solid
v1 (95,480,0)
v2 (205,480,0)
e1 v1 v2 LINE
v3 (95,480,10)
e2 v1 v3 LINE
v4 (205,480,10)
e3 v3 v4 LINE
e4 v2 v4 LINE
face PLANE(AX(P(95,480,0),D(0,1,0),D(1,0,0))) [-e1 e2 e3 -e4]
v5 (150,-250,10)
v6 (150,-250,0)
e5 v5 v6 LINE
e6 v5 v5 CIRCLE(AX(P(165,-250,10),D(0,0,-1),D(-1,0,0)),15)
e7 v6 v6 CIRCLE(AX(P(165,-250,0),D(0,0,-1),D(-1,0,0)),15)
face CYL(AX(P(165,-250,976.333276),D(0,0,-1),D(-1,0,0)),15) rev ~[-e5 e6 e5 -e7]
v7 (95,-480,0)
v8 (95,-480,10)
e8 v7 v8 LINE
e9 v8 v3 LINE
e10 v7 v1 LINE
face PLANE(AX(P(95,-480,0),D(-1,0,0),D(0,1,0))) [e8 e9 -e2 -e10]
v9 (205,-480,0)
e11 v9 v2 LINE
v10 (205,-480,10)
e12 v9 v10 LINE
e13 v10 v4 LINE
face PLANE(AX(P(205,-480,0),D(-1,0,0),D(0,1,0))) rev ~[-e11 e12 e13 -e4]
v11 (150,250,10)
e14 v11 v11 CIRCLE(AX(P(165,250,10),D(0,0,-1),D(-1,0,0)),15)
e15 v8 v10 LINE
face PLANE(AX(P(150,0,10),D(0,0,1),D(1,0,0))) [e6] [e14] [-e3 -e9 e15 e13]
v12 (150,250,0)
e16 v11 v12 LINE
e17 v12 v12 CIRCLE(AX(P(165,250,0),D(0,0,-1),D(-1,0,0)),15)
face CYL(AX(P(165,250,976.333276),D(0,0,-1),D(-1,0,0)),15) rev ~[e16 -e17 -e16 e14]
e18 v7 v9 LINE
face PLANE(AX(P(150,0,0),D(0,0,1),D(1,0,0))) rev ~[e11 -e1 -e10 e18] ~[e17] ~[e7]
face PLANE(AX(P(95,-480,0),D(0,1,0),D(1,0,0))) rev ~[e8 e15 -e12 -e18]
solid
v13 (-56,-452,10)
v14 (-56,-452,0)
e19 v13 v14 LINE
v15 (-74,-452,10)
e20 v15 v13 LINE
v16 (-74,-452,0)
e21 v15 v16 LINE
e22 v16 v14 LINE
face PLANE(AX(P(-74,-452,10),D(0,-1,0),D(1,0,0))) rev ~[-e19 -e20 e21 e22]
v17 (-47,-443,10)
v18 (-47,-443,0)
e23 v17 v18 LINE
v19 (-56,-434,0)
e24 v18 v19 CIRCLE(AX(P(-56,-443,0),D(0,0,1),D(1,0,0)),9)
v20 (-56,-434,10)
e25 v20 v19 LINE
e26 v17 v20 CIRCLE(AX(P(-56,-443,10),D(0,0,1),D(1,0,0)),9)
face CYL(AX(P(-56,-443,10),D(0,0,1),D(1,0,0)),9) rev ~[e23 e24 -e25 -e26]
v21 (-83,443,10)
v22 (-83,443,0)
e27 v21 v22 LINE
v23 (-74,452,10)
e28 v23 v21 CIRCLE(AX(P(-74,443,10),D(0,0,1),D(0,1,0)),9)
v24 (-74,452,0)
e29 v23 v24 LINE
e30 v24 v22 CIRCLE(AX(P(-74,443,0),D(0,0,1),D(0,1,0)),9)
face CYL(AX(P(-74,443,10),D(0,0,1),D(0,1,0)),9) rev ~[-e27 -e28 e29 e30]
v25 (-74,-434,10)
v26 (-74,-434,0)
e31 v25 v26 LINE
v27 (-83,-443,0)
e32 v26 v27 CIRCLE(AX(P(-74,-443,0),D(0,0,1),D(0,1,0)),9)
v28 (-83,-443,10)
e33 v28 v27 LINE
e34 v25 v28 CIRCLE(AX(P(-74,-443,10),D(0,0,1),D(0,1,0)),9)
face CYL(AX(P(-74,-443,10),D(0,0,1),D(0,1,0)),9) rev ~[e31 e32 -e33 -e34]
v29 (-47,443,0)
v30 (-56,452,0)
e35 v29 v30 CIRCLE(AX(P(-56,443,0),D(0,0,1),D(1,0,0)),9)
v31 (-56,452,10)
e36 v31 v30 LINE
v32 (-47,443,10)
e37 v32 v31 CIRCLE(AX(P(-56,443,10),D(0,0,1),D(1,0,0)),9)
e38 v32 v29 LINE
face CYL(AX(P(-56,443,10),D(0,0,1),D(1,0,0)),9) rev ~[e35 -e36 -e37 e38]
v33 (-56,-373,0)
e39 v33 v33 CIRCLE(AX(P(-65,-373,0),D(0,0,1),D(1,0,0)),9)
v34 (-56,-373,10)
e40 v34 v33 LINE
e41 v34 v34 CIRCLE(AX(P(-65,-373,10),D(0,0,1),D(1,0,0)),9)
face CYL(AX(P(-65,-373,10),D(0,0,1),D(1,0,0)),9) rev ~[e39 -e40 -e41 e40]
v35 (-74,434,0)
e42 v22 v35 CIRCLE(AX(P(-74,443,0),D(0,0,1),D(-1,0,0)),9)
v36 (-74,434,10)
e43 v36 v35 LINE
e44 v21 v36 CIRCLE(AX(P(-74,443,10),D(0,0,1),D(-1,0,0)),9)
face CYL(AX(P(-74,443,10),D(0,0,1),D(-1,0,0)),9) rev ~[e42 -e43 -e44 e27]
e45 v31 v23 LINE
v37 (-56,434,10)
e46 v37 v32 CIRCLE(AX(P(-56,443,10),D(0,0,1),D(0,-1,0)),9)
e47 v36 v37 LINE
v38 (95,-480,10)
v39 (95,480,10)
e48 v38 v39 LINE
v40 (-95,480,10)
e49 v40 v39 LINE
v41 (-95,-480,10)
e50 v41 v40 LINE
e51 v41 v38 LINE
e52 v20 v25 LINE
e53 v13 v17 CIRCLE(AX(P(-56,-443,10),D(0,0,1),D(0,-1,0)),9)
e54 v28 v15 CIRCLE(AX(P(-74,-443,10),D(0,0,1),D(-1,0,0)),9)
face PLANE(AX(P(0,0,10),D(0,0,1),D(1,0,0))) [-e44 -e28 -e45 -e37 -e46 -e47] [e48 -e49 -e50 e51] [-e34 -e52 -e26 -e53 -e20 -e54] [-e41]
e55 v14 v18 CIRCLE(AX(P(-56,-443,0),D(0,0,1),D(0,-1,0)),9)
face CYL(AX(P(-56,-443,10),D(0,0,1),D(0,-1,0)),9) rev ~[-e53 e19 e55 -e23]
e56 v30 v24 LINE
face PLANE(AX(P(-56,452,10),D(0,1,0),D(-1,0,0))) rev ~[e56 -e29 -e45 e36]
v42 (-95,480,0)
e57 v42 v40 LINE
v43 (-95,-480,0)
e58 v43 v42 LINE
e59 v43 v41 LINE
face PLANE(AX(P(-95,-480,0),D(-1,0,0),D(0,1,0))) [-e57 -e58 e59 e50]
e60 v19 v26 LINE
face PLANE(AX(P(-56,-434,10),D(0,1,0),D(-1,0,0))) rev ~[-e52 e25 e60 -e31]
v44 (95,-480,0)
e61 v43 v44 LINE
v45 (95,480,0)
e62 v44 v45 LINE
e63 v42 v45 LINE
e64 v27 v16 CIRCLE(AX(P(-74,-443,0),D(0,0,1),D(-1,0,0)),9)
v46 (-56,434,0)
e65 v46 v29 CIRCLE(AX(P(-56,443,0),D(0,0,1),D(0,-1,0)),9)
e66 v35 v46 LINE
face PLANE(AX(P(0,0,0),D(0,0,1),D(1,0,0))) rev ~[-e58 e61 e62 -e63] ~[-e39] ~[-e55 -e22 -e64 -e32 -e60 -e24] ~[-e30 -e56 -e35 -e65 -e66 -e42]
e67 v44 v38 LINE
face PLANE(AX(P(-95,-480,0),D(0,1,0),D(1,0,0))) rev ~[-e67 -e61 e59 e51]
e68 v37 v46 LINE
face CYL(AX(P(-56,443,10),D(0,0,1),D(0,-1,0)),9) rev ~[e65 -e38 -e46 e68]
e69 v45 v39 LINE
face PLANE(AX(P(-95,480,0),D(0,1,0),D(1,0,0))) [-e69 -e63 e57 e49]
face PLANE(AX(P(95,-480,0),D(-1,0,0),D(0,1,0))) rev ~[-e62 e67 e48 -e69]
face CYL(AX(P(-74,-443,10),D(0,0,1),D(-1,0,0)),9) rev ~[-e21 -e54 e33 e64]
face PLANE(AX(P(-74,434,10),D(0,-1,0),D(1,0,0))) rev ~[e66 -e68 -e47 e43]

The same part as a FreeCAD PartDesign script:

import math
import FreeCAD as App
import Part
import Sketcher
Q = App.Units.Quantity


def add_polygon(sketch, points):
    """Adds a closed chain of lines whose ends are joined by coincident constraints."""
    first, n = sketch.GeometryCount, len(points)
    for a, b in zip(points, points[1:] + points[:1]):
        sketch.addGeometry(Part.LineSegment(App.Vector(*a, 0), App.Vector(*b, 0)), False)
    for i in range(n):
        sketch.addConstraint(Sketcher.Constraint("Coincident", first + i, 2, first + (i + 1) % n, 1))

doc = App.newDocument("Part")
body = doc.addObject("PartDesign::Body", "Body")

# Sketch on XY plane
sketch1 = body.newObject("Sketcher::SketchObject", "Sketch")
sketch1.AttachmentSupport = (doc.getObject("XY_Plane"), [""])
sketch1.MapMode = "FlatFace"
add_polygon(sketch1, [(-95, 480), (-95, -480), (95, -480), (95, 480)])  # lines 0-3
sketch1.addConstraint([
    Sketcher.Constraint("Vertical", 0),
    Sketcher.Constraint("Horizontal", 1),
    Sketcher.Constraint("Vertical", 2),
    Sketcher.Constraint("Horizontal", 3),
    Sketcher.Constraint("Symmetric", 0, 2, 2, 2, -1, 1),
    Sketcher.Constraint("DistanceX", 1, 1, 1, 2, Q("190 mm")),
    Sketcher.Constraint("DistanceY", 0, 2, 0, 1, Q("960 mm")),
])
pad1 = body.newObject("PartDesign::Pad", "Pad")
pad1.Profile = sketch1
pad1.Length = 10

# Sketch on XY plane
sketch2 = body.newObject("Sketcher::SketchObject", "Sketch001")
sketch2.AttachmentSupport = (doc.getObject("XY_Plane"), [""])
sketch2.MapMode = "FlatFace"
sketch2.AttachmentOffset = App.Placement(App.Vector(0, 0, 10), App.Rotation())
sketch2.addGeometry([
    Part.ArcOfCircle(Part.Circle(App.Vector(-56, -443, 0), App.Vector(0, 0, 1), 9), math.radians(0), math.radians(90)),  # 0
    Part.LineSegment(App.Vector(-56, -434, 0), App.Vector(-74, -434, 0)),  # 1
    Part.ArcOfCircle(Part.Circle(App.Vector(-74, -443, 0), App.Vector(0, 0, 1), 9), math.radians(90), math.radians(180)),  # 2
    Part.ArcOfCircle(Part.Circle(App.Vector(-74, -443, 0), App.Vector(0, 0, 1), 9), math.radians(180), math.radians(270)),  # 3
    Part.LineSegment(App.Vector(-74, -452, 0), App.Vector(-56, -452, 0)),  # 4
    Part.ArcOfCircle(Part.Circle(App.Vector(-56, -443, 0), App.Vector(0, 0, 1), 9), math.radians(-90), math.radians(0)),  # 5
    Part.Circle(App.Vector(-65, -373, 0), App.Vector(0, 0, 1), 9),  # 6
    Part.ArcOfCircle(Part.Circle(App.Vector(-56, 443, 0), App.Vector(0, 0, 1), 9), math.radians(0), math.radians(90)),  # 7
    Part.LineSegment(App.Vector(-56, 452, 0), App.Vector(-74, 452, 0)),  # 8
    Part.ArcOfCircle(Part.Circle(App.Vector(-74, 443, 0), App.Vector(0, 0, 1), 9), math.radians(90), math.radians(180)),  # 9
    Part.ArcOfCircle(Part.Circle(App.Vector(-74, 443, 0), App.Vector(0, 0, 1), 9), math.radians(180), math.radians(270)),  # 10
    Part.LineSegment(App.Vector(-74, 434, 0), App.Vector(-56, 434, 0)),  # 11
    Part.ArcOfCircle(Part.Circle(App.Vector(-56, 443, 0), App.Vector(0, 0, 1), 9), math.radians(-90), math.radians(0)),  # 12
], False)
sketch2.addConstraint([
    Sketcher.Constraint("Tangent", 0, 2, 1, 1),
    Sketcher.Constraint("Tangent", 1, 2, 2, 1),
    Sketcher.Constraint("Tangent", 2, 2, 3, 1),
    Sketcher.Constraint("Tangent", 3, 2, 4, 1),
    Sketcher.Constraint("Tangent", 4, 2, 5, 1),
    Sketcher.Constraint("Tangent", 5, 2, 0, 1),
    Sketcher.Constraint("Tangent", 7, 2, 8, 1),
    Sketcher.Constraint("Tangent", 8, 2, 9, 1),
    Sketcher.Constraint("Tangent", 9, 2, 10, 1),
    Sketcher.Constraint("Tangent", 10, 2, 11, 1),
    Sketcher.Constraint("Tangent", 11, 2, 12, 1),
    Sketcher.Constraint("Tangent", 12, 2, 7, 1),
    Sketcher.Constraint("Horizontal", 1),
    Sketcher.Constraint("Horizontal", 4),
    Sketcher.Constraint("Horizontal", 8),
    Sketcher.Constraint("Horizontal", 11),
    Sketcher.Constraint("Equal", 0, 2),
    Sketcher.Constraint("Equal", 2, 3),
    Sketcher.Constraint("Equal", 5, 6),
    Sketcher.Constraint("Equal", 6, 7),
    Sketcher.Constraint("Equal", 7, 9),
    Sketcher.Constraint("Equal", 9, 10),
    Sketcher.Constraint("Symmetric", 0, 3, 7, 3, -1),
    Sketcher.Constraint("Symmetric", 2, 2, 9, 2, -1),
    Sketcher.Constraint("Horizontal", 5, 3, 2, 2),
    Sketcher.Constraint("Horizontal", 2, 2, 5, 2),
    Sketcher.Constraint("Horizontal", 9, 2, 12, 2),
    Sketcher.Constraint("Diameter", 6, Q("18 mm")),
    Sketcher.Constraint("DistanceX", 1, 2, 1, 1, Q("18 mm")),
    Sketcher.Constraint("DistanceX", 0, 3, -1, 1, Q("56 mm")),
    Sketcher.Constraint("DistanceY", 0, 3, -1, 1, Q("443 mm")),
    Sketcher.Constraint("DistanceX", 6, 3, -1, 1, Q("65 mm")),
    Sketcher.Constraint("DistanceY", 6, 3, -1, 1, Q("373 mm")),
])
pocket1 = body.newObject("PartDesign::Pocket", "Pocket")
pocket1.Profile = sketch2
pocket1.Type = "ThroughAll"
body2 = doc.addObject("PartDesign::Body", "Body001")

# Sketch on XY plane
sketch3 = body2.newObject("Sketcher::SketchObject", "Sketch002")
sketch3.AttachmentSupport = (doc.getObject("XY_Plane001"), [""])
sketch3.MapMode = "FlatFace"
add_polygon(sketch3, [(95, 480), (95, -480), (205, -480), (205, 480)])  # lines 0-3
sketch3.addConstraint([
    Sketcher.Constraint("Vertical", 0),
    Sketcher.Constraint("Horizontal", 1),
    Sketcher.Constraint("Vertical", 2),
    Sketcher.Constraint("Horizontal", 3),
    Sketcher.Constraint("DistanceX", 1, 1, 1, 2, Q("110 mm")),
    Sketcher.Constraint("DistanceY", 0, 2, 0, 1, Q("960 mm")),
    Sketcher.Constraint("DistanceX", -1, 1, 0, 2, Q("95 mm")),
    Sketcher.Constraint("DistanceY", 0, 2, -1, 1, Q("480 mm")),
])
pad2 = body2.newObject("PartDesign::Pad", "Pad001")
pad2.Profile = sketch3
pad2.Length = 10

# Sketch on XY plane
sketch4 = body2.newObject("Sketcher::SketchObject", "Sketch003")
sketch4.AttachmentSupport = (doc.getObject("XY_Plane001"), [""])
sketch4.MapMode = "FlatFace"
sketch4.AttachmentOffset = App.Placement(App.Vector(0, 0, 10), App.Rotation())
sketch4.addGeometry([
    Part.Circle(App.Vector(165, 250, 0), App.Vector(0, 0, 1), 15),
    Part.Circle(App.Vector(165, -250, 0), App.Vector(0, 0, 1), 15),
], False)
sketch4.addConstraint([
    Sketcher.Constraint("Equal", 0, 1),
    Sketcher.Constraint("Symmetric", 0, 3, 1, 3, -1),
    Sketcher.Constraint("Diameter", 0, Q("30 mm")),
    Sketcher.Constraint("DistanceX", -1, 1, 0, 3, Q("165 mm")),
    Sketcher.Constraint("DistanceY", -1, 1, 0, 3, Q("250 mm")),
])
doc.recompute()
hole = body2.newObject("PartDesign::Hole", "Hole")
hole.Profile = sketch4
hole.ThreadType = "None"
hole.Diameter = 30
hole.DepthType = "ThroughAll"

doc.recompute()
